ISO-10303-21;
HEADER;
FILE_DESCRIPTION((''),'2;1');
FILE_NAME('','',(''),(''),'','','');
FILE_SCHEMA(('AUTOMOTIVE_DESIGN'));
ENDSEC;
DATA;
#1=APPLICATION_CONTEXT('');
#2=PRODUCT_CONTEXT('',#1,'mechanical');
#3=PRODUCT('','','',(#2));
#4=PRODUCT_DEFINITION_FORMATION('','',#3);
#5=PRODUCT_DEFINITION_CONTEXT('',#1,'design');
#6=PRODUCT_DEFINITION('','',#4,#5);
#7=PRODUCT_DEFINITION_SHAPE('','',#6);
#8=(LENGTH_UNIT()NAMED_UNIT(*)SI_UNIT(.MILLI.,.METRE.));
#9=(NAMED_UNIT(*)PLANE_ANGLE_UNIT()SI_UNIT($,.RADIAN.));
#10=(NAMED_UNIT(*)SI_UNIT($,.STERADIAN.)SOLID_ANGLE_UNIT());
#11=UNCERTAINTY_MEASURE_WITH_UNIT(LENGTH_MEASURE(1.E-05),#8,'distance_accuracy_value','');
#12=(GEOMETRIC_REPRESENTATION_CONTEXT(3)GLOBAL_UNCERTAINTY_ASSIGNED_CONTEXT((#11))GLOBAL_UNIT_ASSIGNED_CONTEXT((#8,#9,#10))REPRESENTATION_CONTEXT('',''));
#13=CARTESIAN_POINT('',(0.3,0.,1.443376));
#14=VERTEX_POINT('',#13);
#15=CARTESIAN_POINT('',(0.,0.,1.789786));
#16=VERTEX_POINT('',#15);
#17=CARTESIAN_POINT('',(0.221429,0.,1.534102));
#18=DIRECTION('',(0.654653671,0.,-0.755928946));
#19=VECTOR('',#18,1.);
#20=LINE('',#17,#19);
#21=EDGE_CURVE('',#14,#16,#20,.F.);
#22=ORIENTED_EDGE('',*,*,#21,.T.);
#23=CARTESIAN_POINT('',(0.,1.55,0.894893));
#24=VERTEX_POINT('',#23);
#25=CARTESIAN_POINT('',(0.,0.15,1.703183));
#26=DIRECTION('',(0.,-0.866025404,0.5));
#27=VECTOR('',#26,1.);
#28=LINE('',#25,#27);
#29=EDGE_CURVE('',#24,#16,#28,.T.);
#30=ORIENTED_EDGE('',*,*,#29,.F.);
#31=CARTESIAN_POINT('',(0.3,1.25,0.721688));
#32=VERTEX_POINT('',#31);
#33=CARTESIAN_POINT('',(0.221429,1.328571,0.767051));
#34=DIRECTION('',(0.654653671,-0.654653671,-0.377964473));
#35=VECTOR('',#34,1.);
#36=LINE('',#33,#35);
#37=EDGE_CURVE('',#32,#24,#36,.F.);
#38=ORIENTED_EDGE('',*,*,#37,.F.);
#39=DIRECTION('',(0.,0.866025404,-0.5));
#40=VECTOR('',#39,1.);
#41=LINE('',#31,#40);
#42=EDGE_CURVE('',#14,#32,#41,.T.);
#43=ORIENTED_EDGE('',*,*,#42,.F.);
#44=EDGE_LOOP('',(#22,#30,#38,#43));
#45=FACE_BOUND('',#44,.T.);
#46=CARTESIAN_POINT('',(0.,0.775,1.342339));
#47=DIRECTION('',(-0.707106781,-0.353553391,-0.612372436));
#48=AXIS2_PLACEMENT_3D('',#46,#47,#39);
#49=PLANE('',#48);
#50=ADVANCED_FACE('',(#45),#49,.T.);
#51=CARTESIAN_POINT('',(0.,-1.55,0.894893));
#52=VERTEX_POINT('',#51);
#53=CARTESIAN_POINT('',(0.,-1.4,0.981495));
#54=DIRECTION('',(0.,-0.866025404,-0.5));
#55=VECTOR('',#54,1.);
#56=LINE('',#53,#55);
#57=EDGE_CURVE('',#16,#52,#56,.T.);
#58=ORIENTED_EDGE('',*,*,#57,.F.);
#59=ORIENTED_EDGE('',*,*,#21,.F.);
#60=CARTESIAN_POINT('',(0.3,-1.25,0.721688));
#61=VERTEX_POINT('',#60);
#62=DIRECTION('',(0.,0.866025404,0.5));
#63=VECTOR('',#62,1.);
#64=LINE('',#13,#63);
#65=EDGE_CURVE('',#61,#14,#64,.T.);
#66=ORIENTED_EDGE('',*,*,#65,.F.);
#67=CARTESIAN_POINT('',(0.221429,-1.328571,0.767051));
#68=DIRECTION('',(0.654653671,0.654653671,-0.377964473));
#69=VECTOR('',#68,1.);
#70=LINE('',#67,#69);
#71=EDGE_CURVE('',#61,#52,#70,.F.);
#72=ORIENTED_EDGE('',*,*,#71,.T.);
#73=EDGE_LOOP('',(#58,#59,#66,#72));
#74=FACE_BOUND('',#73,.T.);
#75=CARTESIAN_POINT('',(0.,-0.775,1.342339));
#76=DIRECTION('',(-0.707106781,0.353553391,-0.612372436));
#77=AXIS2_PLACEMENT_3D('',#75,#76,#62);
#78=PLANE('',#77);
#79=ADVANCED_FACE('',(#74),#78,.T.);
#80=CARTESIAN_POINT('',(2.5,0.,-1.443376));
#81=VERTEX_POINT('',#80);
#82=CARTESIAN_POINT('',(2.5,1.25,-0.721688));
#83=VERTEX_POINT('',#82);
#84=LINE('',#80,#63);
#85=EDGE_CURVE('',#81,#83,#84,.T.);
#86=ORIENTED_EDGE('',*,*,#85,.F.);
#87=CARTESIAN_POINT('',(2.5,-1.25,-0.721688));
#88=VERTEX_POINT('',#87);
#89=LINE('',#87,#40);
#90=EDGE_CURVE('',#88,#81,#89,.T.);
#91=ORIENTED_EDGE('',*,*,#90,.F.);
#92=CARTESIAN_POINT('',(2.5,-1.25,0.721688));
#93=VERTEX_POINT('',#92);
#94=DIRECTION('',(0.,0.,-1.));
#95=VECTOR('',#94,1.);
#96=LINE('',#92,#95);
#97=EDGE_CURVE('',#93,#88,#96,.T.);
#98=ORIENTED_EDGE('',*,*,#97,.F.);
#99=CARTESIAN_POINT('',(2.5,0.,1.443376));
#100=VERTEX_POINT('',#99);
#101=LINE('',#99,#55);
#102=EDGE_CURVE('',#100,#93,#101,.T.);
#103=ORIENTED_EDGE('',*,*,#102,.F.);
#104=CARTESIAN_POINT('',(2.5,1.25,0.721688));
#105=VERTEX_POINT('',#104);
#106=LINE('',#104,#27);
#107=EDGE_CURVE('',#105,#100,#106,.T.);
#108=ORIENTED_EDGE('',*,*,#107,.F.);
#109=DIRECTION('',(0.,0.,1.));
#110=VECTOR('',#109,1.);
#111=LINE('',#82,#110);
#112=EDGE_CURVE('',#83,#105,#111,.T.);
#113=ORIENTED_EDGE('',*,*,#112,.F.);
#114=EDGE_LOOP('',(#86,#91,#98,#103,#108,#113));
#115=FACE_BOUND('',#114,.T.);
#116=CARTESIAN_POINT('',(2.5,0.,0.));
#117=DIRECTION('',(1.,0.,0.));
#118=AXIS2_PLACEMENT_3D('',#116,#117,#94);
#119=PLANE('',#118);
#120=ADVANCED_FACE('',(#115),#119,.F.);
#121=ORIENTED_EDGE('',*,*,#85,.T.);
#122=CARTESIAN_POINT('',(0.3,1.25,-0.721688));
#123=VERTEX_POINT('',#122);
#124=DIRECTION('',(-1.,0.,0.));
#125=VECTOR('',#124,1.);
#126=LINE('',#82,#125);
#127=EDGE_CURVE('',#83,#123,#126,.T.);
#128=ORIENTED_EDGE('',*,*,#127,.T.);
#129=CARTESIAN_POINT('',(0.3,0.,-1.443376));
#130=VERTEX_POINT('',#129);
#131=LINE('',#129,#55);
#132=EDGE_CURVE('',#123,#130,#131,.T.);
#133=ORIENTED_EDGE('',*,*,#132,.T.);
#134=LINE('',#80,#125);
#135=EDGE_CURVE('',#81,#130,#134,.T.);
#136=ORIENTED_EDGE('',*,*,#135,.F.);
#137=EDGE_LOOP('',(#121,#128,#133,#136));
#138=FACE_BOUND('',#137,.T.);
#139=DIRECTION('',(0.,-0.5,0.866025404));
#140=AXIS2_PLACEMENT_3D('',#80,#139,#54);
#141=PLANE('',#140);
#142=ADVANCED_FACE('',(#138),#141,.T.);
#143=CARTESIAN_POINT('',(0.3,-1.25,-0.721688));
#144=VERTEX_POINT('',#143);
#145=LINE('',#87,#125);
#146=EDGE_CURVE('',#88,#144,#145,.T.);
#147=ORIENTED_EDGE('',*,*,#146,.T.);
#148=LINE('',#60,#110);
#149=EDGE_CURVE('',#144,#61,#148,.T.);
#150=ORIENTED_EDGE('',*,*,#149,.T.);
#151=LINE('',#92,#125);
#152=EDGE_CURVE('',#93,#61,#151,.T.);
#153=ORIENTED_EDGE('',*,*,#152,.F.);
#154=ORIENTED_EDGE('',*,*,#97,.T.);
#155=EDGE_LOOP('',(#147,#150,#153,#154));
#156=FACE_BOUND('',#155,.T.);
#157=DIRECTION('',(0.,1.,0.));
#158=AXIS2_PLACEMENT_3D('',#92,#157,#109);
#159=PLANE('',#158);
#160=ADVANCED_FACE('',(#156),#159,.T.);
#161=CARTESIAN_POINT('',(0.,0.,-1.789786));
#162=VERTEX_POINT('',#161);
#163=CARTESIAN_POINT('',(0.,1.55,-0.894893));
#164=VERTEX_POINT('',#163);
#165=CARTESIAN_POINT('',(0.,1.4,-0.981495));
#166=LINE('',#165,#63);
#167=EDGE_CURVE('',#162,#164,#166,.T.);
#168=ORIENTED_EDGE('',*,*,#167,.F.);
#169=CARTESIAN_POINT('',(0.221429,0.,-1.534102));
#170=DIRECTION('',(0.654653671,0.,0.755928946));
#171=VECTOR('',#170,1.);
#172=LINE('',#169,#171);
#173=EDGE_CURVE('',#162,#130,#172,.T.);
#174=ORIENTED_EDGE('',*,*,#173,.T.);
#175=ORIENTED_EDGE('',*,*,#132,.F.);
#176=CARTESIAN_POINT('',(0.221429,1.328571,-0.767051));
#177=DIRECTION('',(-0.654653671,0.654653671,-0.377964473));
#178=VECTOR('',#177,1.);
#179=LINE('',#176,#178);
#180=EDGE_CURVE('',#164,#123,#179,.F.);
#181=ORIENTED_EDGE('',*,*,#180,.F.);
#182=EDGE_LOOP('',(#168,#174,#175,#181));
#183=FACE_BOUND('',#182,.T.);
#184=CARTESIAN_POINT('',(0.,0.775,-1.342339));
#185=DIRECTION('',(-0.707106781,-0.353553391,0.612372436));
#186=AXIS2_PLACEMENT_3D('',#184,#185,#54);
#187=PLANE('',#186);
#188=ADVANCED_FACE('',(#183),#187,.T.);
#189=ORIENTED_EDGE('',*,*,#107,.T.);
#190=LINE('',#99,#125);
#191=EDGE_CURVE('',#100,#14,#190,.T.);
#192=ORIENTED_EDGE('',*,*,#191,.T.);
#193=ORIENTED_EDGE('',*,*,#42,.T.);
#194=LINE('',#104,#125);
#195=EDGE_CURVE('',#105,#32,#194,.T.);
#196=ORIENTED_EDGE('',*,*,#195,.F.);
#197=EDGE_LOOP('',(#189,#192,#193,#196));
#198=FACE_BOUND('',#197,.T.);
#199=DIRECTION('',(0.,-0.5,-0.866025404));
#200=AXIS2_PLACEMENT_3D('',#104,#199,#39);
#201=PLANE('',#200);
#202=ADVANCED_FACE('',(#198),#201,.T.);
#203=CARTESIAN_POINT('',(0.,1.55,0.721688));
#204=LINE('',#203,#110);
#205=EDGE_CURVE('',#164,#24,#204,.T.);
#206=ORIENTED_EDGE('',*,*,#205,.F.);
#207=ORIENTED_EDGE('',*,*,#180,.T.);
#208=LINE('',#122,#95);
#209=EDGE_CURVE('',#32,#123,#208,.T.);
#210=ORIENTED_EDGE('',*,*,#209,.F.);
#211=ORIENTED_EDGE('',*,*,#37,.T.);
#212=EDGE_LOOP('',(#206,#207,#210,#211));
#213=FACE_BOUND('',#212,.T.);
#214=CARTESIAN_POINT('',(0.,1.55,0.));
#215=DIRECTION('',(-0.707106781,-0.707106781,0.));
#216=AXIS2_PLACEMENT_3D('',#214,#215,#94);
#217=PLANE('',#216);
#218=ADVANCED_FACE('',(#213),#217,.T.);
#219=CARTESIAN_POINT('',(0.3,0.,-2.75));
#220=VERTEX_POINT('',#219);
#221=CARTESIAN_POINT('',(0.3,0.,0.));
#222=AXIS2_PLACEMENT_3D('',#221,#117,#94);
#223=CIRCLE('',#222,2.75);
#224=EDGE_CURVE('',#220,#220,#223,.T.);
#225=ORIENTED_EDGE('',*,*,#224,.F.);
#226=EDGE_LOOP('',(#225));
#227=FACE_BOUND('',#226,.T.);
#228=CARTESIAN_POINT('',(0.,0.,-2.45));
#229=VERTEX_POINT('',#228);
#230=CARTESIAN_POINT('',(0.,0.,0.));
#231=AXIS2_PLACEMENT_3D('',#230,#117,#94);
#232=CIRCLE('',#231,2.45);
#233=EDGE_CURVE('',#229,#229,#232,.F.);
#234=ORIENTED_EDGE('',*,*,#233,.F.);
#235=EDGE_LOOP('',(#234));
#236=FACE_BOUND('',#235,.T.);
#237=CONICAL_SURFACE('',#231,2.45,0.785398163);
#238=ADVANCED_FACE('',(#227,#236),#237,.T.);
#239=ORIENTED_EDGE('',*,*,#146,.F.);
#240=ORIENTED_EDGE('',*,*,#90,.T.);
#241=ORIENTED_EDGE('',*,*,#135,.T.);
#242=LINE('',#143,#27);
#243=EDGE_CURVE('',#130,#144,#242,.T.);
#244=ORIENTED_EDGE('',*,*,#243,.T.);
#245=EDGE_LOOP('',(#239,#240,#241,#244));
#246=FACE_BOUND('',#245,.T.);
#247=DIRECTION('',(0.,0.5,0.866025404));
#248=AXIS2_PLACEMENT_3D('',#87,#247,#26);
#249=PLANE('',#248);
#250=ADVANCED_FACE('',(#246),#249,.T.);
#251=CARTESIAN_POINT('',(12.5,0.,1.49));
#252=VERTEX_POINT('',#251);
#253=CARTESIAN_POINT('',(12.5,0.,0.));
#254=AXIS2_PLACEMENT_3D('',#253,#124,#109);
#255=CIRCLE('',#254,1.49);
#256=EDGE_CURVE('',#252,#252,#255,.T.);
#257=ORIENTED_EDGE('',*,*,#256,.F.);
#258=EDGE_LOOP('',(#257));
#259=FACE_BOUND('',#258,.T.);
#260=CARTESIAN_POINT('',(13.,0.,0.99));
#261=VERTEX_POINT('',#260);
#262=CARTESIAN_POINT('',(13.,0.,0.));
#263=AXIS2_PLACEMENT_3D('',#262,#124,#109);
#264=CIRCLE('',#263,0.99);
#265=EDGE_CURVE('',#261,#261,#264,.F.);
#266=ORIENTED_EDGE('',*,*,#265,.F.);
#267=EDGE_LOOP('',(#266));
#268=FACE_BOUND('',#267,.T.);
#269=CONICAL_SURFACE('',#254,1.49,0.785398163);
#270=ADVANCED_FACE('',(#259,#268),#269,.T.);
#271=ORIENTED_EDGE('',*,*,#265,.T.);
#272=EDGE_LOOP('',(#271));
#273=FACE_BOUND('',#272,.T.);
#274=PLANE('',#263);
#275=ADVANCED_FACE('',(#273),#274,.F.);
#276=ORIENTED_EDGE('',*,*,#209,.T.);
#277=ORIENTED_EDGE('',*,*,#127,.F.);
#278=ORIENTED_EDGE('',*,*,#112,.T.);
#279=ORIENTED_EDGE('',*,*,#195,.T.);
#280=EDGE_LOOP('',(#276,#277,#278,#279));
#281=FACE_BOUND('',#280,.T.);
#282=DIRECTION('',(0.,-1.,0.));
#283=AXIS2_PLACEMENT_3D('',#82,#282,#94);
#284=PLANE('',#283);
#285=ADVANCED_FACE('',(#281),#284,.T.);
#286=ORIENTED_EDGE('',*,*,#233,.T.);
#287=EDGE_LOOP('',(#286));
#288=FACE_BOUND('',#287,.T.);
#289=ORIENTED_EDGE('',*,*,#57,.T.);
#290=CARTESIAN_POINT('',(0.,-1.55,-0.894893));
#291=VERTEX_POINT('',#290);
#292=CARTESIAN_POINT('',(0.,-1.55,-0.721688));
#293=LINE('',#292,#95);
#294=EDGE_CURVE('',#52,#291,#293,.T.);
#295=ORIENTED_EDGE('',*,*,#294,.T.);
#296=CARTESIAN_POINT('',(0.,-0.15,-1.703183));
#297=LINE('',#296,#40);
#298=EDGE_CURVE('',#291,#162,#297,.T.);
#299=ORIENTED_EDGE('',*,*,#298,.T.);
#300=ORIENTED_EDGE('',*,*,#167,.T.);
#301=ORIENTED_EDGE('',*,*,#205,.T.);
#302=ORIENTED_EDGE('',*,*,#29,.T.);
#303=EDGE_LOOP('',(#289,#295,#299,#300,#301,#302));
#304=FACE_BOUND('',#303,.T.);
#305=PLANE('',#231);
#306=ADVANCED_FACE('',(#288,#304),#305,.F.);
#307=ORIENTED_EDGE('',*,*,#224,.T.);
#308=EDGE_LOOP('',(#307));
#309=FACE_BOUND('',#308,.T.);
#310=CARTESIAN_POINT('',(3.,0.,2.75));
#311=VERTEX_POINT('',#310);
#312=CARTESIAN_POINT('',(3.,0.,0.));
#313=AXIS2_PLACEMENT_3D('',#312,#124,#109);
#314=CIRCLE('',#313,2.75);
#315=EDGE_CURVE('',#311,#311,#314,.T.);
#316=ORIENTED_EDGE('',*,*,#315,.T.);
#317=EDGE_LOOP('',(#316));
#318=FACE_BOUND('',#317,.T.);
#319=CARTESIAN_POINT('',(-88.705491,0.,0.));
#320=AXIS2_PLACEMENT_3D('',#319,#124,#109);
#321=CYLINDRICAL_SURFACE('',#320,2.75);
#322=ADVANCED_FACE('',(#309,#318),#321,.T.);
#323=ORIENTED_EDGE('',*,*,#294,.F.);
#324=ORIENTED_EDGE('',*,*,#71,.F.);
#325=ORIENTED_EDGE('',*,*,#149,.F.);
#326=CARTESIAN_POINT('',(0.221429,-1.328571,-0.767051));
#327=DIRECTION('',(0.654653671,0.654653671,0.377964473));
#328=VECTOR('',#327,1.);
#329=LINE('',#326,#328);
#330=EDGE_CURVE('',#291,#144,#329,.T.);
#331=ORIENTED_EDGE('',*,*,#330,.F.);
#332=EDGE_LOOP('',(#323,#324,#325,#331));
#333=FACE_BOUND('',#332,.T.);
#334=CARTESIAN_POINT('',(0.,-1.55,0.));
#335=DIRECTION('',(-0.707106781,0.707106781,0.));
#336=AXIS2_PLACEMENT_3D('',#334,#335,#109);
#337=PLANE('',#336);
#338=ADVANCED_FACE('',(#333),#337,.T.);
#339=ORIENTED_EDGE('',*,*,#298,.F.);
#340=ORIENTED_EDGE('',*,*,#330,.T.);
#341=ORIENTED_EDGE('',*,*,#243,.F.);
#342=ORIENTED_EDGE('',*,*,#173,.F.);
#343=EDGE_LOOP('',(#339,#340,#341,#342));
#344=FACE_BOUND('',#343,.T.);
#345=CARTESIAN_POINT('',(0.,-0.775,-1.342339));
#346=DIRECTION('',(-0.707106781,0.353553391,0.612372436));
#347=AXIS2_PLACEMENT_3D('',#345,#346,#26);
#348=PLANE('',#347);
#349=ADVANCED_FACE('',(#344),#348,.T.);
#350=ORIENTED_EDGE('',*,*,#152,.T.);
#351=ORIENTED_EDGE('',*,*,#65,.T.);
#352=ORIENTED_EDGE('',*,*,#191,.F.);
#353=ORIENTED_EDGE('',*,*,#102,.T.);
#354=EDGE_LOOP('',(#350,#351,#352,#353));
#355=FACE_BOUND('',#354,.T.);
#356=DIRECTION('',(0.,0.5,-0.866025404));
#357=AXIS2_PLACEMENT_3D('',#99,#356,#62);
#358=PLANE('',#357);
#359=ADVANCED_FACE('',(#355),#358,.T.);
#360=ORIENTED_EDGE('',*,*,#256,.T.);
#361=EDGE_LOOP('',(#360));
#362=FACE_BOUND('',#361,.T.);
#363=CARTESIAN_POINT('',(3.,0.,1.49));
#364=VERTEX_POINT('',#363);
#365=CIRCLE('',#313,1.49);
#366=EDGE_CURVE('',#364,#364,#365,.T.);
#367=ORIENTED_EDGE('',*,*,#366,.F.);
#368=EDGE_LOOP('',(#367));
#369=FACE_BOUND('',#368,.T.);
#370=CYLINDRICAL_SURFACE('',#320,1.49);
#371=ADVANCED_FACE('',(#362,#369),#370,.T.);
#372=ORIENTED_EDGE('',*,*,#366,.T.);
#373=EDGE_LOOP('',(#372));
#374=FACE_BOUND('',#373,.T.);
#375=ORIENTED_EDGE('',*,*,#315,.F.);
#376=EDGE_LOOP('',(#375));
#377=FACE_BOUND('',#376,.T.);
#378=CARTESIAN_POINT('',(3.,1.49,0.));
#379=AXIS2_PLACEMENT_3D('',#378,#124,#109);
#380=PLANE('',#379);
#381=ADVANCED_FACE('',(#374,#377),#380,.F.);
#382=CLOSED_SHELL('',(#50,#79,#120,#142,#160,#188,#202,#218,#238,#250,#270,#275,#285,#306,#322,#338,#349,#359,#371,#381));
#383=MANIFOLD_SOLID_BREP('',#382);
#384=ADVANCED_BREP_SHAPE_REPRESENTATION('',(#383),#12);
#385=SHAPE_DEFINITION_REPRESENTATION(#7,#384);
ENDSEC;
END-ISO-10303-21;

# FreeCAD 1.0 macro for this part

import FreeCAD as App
import Part
import Sketcher
from FreeCAD import Vector
Q = App.Units.Quantity


def edges_at(feature, points):
    """Names of the edges that pass closest to the given points."""
    edges = feature.Shape.Edges
    near = lambda p: min(range(len(edges)), key=lambda i: edges[i].distToShape(Part.Vertex(*p))[0])
    return sorted({f"Edge{near(p) + 1}" for p in points})


def add_polygon(sketch, points):
    """Adds a closed chain of lines whose ends are joined by coincident constraints."""
    first, n = sketch.GeometryCount, len(points)
    for a, b in zip(points, points[1:] + points[:1]):
        sketch.addGeometry(Part.LineSegment(App.Vector(*a, 0), App.Vector(*b, 0)), False)
    for i in range(n):
        sketch.addConstraint(Sketcher.Constraint("Coincident", first + i, 2, first + (i + 1) % n, 1))

doc = App.newDocument("Part")
body = doc.addObject("PartDesign::Body", "Body")

sketch1 = body.newObject("Sketcher::SketchObject", "Sketch")
sketch1.AttachmentSupport = (doc.getObject("XY_Plane"), [""])
sketch1.MapMode = "FlatFace"
add_polygon(sketch1, [(0, 2.75), (0, 0), (13, 0), (13, 1.49), (3, 1.49), (3, 2.75)])
sketch1.addConstraint(Sketcher.Constraint("Vertical", 0))
sketch1.addConstraint(Sketcher.Constraint("Horizontal", 1))
sketch1.addConstraint(Sketcher.Constraint("Vertical", 2))
sketch1.addConstraint(Sketcher.Constraint("Horizontal", 3))
sketch1.addConstraint(Sketcher.Constraint("Vertical", 4))
sketch1.addConstraint(Sketcher.Constraint("Horizontal", 5))
sketch1.addConstraint(Sketcher.Constraint("Coincident", 0, 2, -1, 1))
sketch1.addConstraint(Sketcher.Constraint("DistanceX", 1, 1, 1, 2, 13.0))
sketch1.addConstraint(Sketcher.Constraint("DistanceX", 3, 2, 3, 1, 10.0))
sketch1.addConstraint(Sketcher.Constraint("DistanceY", 0, 2, 0, 1, 2.75))
sketch1.addConstraint(Sketcher.Constraint("DistanceY", 2, 1, 2, 2, 1.49))
revolution = body.newObject("PartDesign::Revolution", "Revolution")
revolution.Profile = sketch1
revolution.ReferenceAxis = (sketch1, ["H_Axis"])
revolution.Angle = 360
doc.recompute()

chamfer = body.newObject("PartDesign::Chamfer", "Chamfer")
chamfer.Base = (revolution, edges_at(revolution, [(13, -1.49, 0)]))
chamfer.Size = 0.5
doc.recompute()

chamfer2 = body.newObject("PartDesign::Chamfer", "Chamfer001")
chamfer2.Base = (chamfer, edges_at(chamfer, [(0, -2.75, 0)]))
chamfer2.Size = 0.3

sketch2 = body.newObject("Sketcher::SketchObject", "Sketch001")
sketch2.AttachmentSupport = (doc.getObject("YZ_Plane"), [""])
sketch2.MapMode = "FlatFace"
add_polygon(sketch2, [(0, 1.443376), (-1.25, 0.721688), (-1.25, -0.721688), (0, -1.443376), (1.25, -0.721688), (1.25, 0.721688)])
sketch2.addConstraint(Sketcher.Constraint("Vertical", 1))
sketch2.addConstraint(Sketcher.Constraint("Vertical", 4))
sketch2.addConstraint(Sketcher.Constraint("Symmetric", 0, 2, 3, 2, -1, 1))
sketch2.addConstraint(Sketcher.Constraint("Symmetric", 2, 2, 5, 2, -1, 1))
sketch2.addConstraint(Sketcher.Constraint("PointOnObject", 2, 2, -2))
sketch2.addConstraint(Sketcher.Constraint("Parallel", 2, 5))
sketch2.addConstraint(Sketcher.Constraint("Horizontal", 1, 2, 3, 2))
sketch2.addConstraint(Sketcher.Constraint("Angle", 0, Q("-150 deg")))
sketch2.addConstraint(Sketcher.Constraint("DistanceX", 1, 2, 3, 2, 2.5))
sketch2.addConstraint(Sketcher.Constraint("DistanceY", 1, 2, 1, 1, 1.443376))
pocket1 = body.newObject("PartDesign::Pocket", "Pocket")
pocket1.Profile = sketch2
pocket1.Length = 2.5
pocket1.Reversed = True
doc.recompute()

chamfer3 = body.newObject("PartDesign::Chamfer", "Chamfer002")
chamfer3.Base = (pocket1, edges_at(pocket1, [
    (0, 0.625, 1.083),
    (0, -0.625, 1.083),
    (0, -1.25, 0),
    (0, -0.625, -1.083),
    (0, 0.625, -1.083),
    (0, 1.25, 0),
]))
chamfer3.Size = 0.3

doc.recompute()
